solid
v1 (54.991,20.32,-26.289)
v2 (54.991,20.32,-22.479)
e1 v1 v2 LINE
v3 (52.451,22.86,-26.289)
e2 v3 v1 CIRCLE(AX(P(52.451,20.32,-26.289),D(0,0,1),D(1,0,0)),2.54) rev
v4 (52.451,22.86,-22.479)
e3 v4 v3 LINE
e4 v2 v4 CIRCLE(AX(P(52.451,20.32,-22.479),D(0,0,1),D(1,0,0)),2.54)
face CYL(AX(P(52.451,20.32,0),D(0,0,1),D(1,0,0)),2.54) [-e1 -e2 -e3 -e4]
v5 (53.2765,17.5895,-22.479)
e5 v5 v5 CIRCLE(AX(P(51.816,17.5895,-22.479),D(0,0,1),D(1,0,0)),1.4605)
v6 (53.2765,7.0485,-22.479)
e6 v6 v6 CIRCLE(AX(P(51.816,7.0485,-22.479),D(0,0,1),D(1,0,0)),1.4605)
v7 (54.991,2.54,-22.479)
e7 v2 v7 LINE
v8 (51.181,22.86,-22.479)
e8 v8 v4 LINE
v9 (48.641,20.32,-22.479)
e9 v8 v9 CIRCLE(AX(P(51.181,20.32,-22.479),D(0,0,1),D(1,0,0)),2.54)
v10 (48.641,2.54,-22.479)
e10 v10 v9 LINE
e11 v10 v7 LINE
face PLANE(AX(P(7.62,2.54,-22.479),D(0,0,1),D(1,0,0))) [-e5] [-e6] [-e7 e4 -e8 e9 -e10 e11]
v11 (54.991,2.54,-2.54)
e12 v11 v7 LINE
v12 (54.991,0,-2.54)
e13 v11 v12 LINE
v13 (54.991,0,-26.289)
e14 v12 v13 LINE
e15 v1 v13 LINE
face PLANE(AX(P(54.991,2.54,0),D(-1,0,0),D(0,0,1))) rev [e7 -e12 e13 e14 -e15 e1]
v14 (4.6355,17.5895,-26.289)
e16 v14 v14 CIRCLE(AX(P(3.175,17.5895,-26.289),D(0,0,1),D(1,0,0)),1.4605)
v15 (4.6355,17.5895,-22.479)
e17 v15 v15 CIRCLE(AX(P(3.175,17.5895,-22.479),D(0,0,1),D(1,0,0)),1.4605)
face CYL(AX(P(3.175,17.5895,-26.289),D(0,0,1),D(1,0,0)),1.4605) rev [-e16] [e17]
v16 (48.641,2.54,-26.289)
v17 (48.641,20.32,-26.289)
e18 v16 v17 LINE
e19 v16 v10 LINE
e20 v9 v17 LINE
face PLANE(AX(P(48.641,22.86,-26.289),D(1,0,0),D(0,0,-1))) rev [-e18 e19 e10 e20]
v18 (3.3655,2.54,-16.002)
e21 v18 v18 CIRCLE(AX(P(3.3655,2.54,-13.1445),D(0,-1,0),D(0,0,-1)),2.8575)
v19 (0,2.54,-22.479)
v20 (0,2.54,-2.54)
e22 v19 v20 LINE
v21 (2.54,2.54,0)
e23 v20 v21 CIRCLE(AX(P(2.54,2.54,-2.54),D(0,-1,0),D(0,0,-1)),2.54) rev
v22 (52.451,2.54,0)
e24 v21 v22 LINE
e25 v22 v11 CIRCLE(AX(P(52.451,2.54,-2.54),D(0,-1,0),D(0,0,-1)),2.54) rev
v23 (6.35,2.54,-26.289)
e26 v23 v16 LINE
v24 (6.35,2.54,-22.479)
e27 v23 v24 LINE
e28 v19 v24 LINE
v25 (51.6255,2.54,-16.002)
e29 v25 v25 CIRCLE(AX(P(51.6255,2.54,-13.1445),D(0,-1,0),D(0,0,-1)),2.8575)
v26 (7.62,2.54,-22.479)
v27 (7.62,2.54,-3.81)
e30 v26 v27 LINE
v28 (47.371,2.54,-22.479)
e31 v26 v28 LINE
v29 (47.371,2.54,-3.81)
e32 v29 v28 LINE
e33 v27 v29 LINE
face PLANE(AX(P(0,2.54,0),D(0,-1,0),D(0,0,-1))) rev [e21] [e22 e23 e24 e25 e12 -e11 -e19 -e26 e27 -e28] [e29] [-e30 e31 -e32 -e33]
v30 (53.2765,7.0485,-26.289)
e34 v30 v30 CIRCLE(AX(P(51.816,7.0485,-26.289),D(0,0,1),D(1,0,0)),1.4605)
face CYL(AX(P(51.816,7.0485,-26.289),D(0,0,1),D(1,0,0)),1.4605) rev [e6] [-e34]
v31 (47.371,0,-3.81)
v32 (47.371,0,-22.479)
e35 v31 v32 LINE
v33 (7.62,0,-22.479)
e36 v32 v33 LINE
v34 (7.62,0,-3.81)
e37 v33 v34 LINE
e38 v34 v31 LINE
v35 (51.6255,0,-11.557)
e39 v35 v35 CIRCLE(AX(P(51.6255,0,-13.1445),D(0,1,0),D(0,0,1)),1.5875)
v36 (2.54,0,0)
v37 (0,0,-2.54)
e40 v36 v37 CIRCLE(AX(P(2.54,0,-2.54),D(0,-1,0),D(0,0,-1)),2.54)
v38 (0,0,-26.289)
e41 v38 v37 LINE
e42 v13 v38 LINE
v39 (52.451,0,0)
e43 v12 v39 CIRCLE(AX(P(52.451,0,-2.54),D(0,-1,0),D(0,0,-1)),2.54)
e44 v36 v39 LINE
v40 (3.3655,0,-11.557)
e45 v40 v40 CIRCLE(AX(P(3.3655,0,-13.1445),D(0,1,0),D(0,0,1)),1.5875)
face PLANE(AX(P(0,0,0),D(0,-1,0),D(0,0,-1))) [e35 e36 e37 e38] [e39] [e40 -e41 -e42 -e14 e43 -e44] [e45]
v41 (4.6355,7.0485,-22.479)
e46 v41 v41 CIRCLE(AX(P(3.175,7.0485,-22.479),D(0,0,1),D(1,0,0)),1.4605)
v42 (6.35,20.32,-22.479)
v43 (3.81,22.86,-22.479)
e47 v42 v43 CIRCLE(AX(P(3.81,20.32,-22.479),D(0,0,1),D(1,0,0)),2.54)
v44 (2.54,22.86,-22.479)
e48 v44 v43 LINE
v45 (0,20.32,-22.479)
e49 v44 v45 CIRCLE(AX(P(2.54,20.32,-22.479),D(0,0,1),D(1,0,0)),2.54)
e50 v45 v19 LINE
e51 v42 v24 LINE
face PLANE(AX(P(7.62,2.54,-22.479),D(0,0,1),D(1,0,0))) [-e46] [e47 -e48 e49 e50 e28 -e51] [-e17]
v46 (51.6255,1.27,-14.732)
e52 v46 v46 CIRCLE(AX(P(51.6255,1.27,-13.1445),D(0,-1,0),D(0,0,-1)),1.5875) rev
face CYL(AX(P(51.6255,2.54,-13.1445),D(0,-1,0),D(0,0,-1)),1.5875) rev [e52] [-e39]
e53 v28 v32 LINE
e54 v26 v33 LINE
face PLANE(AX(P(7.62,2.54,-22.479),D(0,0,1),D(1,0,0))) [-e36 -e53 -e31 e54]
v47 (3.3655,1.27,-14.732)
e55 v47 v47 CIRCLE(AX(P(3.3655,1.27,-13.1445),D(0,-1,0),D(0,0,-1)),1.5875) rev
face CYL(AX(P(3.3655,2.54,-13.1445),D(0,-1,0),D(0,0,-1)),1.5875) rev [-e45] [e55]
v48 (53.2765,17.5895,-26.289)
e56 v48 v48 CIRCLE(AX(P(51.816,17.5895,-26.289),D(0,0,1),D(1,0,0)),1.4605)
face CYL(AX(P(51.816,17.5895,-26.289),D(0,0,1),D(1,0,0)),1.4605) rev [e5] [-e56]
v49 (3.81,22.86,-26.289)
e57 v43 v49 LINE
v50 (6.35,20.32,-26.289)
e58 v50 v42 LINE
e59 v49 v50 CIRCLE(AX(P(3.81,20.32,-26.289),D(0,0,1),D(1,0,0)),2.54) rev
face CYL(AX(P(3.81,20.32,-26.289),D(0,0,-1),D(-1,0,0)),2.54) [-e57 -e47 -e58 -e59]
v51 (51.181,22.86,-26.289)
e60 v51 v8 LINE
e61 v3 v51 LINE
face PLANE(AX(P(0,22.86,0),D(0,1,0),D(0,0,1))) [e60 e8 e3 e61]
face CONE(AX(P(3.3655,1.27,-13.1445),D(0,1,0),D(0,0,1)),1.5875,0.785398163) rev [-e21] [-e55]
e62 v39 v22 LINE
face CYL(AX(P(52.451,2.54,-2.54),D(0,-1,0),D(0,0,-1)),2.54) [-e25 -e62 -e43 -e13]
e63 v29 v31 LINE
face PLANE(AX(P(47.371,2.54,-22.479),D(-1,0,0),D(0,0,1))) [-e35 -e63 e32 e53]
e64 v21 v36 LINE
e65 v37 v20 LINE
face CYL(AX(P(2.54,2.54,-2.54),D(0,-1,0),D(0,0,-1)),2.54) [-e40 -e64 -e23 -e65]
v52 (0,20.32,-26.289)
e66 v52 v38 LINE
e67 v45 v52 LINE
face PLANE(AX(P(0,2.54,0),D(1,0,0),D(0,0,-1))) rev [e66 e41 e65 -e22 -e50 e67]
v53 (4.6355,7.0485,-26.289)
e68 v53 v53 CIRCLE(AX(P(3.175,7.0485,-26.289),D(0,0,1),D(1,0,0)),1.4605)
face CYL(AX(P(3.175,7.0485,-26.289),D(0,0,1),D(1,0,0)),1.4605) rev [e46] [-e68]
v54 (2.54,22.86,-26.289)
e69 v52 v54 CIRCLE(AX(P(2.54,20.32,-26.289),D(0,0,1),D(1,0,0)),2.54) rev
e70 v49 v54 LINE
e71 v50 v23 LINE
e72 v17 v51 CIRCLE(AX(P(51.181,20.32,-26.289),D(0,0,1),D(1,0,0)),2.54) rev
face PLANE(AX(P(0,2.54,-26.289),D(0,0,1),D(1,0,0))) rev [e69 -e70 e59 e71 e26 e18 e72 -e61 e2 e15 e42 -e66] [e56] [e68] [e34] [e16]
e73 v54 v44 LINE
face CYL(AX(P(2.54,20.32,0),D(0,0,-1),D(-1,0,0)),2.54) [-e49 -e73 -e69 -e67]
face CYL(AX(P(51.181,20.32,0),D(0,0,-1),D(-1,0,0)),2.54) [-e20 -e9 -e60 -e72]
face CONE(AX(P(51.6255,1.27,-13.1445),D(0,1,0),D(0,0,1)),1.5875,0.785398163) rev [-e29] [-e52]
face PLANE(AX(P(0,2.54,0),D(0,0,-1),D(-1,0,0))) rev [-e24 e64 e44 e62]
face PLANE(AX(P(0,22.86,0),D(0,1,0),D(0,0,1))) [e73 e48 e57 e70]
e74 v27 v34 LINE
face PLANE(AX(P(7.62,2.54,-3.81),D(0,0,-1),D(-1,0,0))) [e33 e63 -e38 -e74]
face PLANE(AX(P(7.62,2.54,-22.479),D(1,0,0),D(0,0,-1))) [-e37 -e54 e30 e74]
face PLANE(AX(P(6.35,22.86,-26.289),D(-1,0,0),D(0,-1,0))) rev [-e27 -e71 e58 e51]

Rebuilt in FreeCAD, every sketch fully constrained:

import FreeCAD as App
import Part
import Sketcher
Q = App.Units.Quantity


def edges_at(feature, points):
    """Names of the edges that pass closest to the given points."""
    edges = feature.Shape.Edges
    near = lambda p: min(range(len(edges)), key=lambda i: edges[i].distToShape(Part.Vertex(*p))[0])
    return sorted({f"Edge{near(p) + 1}" for p in points})


def add_polygon(sketch, points):
    """Adds a closed chain of lines whose ends are joined by coincident constraints."""
    first, n = sketch.GeometryCount, len(points)
    for a, b in zip(points, points[1:] + points[:1]):
        sketch.addGeometry(Part.LineSegment(App.Vector(*a, 0), App.Vector(*b, 0)), False)
    for i in range(n):
        sketch.addConstraint(Sketcher.Constraint("Coincident", first + i, 2, first + (i + 1) % n, 1))

doc = App.newDocument("Part")
body = doc.addObject("PartDesign::Body", "Body")

# Sketch on XZ plane
sketch1 = body.newObject("Sketcher::SketchObject", "Sketch")
sketch1.AttachmentSupport = (doc.getObject("XZ_Plane"), [""])
sketch1.MapMode = "FlatFace"
add_polygon(sketch1, [(0, -26.3), (0, 0), (55, 0), (55, -26.3)])  # lines 0-3
sketch1.addGeometry(Part.Circle(App.Vector(3.4, -13.1, 0), App.Vector(0, 0, 1), 1.6), False)  # 4
add_polygon(sketch1, [(47.4, -3.8), (7.6, -3.8), (7.6, -22.5), (47.4, -22.5)])  # lines 5-8
sketch1.addGeometry(Part.Circle(App.Vector(51.6, -13.1, 0), App.Vector(0, 0, 1), 1.6), False)  # 9
sketch1.addConstraint([
    Sketcher.Constraint("Vertical", 0),
    Sketcher.Constraint("Horizontal", 1),
    Sketcher.Constraint("Vertical", 2),
    Sketcher.Constraint("Horizontal", 3),
    Sketcher.Constraint("Horizontal", 5),
    Sketcher.Constraint("Vertical", 6),
    Sketcher.Constraint("Horizontal", 7),
    Sketcher.Constraint("Vertical", 8),
    Sketcher.Constraint("Coincident", 0, 2, -1, 1),
    Sketcher.Constraint("Equal", 4, 9),
    Sketcher.Constraint("Horizontal", 4, 3, 9, 3),
    Sketcher.Constraint("Diameter", 4, Q("0.125 in")),
    Sketcher.Constraint("DistanceX", -1, 1, 5, 2, Q("0.3 in")),
    Sketcher.Constraint("DistanceX", 4, 3, 9, 3, Q("1.9 in")),
    Sketcher.Constraint("DistanceX", 7, 2, 2, 2, Q("0.3 in")),
    Sketcher.Constraint("DistanceX", 1, 1, 1, 2, Q("2.165 in")),
    Sketcher.Constraint("DistanceY", 0, 1, 0, 2, Q("1.035 in")),
    Sketcher.Constraint("DistanceY", 6, 2, 6, 1, Q("0.735 in")),
    Sketcher.Constraint("DistanceY", 5, 2, -1, 1, Q("0.15 in")),
    Sketcher.Constraint("DistanceX", -1, 1, 4, 3, Q("0.1325 in")),
    Sketcher.Constraint("DistanceY", 4, 3, -1, 1, Q("0.5175 in")),
])
pad1 = body.newObject("PartDesign::Pad", "Pad")
pad1.Profile = sketch1
pad1.Length = Q("0.1 in")
pad1.Reversed = True

# Sketch on XZ plane
sketch2 = body.newObject("Sketcher::SketchObject", "Sketch001")
sketch2.AttachmentSupport = (doc.getObject("XZ_Plane"), [""])
sketch2.MapMode = "FlatFace"
sketch2.AttachmentOffset = App.Placement(App.Vector(0, 0, -0.1 * 25.4), App.Rotation())
add_polygon(sketch2, [(0, -26.3), (0, -22.5), (55, -22.5), (55, -26.3)])  # lines 0-3
sketch2.addConstraint([
    Sketcher.Constraint("Vertical", 0),
    Sketcher.Constraint("Horizontal", 1),
    Sketcher.Constraint("Vertical", 2),
    Sketcher.Constraint("Horizontal", 3),
    Sketcher.Constraint("PointOnObject", 0, 2, -2),
    Sketcher.Constraint("DistanceY", 0, 1, 0, 2, Q("0.15 in")),
    Sketcher.Constraint("DistanceX", 1, 1, 1, 2, Q("2.165 in")),
    Sketcher.Constraint("DistanceY", 0, 2, -1, 1, Q("0.885 in")),
])
pad2 = body.newObject("PartDesign::Pad", "Pad001")
pad2.Profile = sketch2
pad2.Length = Q("0.8 in")
pad2.Reversed = True

# Sketch on XY plane
sketch3 = body.newObject("Sketcher::SketchObject", "Sketch002")
sketch3.AttachmentSupport = (doc.getObject("XY_Plane"), [""])
sketch3.MapMode = "FlatFace"
sketch3.AttachmentOffset = App.Placement(App.Vector(0, 0, -0.885 * 25.4), App.Rotation())
add_polygon(sketch3, [(6, 23), (6, 3), (49, 3), (49, 23)])  # lines 0-3
sketch3.addConstraint([
    Sketcher.Constraint("Vertical", 0),
    Sketcher.Constraint("Horizontal", 1),
    Sketcher.Constraint("Vertical", 2),
    Sketcher.Constraint("Horizontal", 3),
    Sketcher.Constraint("DistanceY", 0, 2, 0, 1, Q("0.8 in")),
    Sketcher.Constraint("DistanceY", -1, 1, 0, 2, Q("0.1 in")),
    Sketcher.Constraint("DistanceX", 1, 1, 1, 2, Q("1.665 in")),
    Sketcher.Constraint("DistanceX", -1, 1, 0, 2, Q("0.25 in")),
])
pocket1 = body.newObject("PartDesign::Pocket", "Pocket")
pocket1.Profile = sketch3
pocket1.Type = "ThroughAll"
doc.recompute()

fillet = body.newObject("PartDesign::Fillet", "Fillet")
fillet.Base = (pocket1, edges_at(pocket1, [
    (0, 22.86, -24.384),
    (54.991, 22.86, -24.384),
    (6.35, 22.86, -24.384),
    (48.641, 22.86, -24.384),
    (54.991, 1.27, 0),
    (0, 1.27, 0),
]))
fillet.Radius = Q("0.1 in")
doc.recompute()

chamfer = body.newObject("PartDesign::Chamfer", "Chamfer")
chamfer.Base = (fillet, edges_at(fillet, [(51.626, 2.54, -14.732), (3.365, 2.54, -14.732)]))
chamfer.Size = Q("0.05 in")

# Sketch on XY plane
sketch4 = body.newObject("Sketcher::SketchObject", "Sketch003")
sketch4.AttachmentSupport = (doc.getObject("XY_Plane"), [""])
sketch4.MapMode = "FlatFace"
sketch4.AttachmentOffset = App.Placement(App.Vector(0, 0, -0.885 * 25.4), App.Rotation())
sketch4.addGeometry([
    Part.Circle(App.Vector(3.2, 17.6, 0), App.Vector(0, 0, 1), 1.5),
    Part.Circle(App.Vector(3.2, 7, 0), App.Vector(0, 0, 1), 1.5),
    Part.Circle(App.Vector(51.8, 17.6, 0), App.Vector(0, 0, 1), 1.5),
    Part.Circle(App.Vector(51.8, 7, 0), App.Vector(0, 0, 1), 1.5),
], False)
sketch4.addConstraint([
    Sketcher.Constraint("Equal", 0, 1),
    Sketcher.Constraint("Equal", 1, 2),
    Sketcher.Constraint("Equal", 2, 3),
    Sketcher.Constraint("Horizontal", 0, 3, 2, 3),
    Sketcher.Constraint("Horizontal", 1, 3, 3, 3),
    Sketcher.Constraint("Vertical", 0, 3, 1, 3),
    Sketcher.Constraint("Vertical", 2, 3, 3, 3),
    Sketcher.Constraint("Diameter", 0, Q("0.115 in")),
    Sketcher.Constraint("DistanceX", -1, 1, 2, 3, Q("2.04 in")),
    Sketcher.Constraint("DistanceX", -1, 1, 0, 3, Q("0.125 in")),
    Sketcher.Constraint("DistanceY", 1, 3, 0, 3, Q("0.415 in")),
    Sketcher.Constraint("DistanceY", -1, 1, 0, 3, Q("0.6925 in")),
])
pocket2 = body.newObject("PartDesign::Pocket", "Pocket001")
pocket2.Profile = sketch4
pocket2.Type = "ThroughAll"

doc.recompute()
